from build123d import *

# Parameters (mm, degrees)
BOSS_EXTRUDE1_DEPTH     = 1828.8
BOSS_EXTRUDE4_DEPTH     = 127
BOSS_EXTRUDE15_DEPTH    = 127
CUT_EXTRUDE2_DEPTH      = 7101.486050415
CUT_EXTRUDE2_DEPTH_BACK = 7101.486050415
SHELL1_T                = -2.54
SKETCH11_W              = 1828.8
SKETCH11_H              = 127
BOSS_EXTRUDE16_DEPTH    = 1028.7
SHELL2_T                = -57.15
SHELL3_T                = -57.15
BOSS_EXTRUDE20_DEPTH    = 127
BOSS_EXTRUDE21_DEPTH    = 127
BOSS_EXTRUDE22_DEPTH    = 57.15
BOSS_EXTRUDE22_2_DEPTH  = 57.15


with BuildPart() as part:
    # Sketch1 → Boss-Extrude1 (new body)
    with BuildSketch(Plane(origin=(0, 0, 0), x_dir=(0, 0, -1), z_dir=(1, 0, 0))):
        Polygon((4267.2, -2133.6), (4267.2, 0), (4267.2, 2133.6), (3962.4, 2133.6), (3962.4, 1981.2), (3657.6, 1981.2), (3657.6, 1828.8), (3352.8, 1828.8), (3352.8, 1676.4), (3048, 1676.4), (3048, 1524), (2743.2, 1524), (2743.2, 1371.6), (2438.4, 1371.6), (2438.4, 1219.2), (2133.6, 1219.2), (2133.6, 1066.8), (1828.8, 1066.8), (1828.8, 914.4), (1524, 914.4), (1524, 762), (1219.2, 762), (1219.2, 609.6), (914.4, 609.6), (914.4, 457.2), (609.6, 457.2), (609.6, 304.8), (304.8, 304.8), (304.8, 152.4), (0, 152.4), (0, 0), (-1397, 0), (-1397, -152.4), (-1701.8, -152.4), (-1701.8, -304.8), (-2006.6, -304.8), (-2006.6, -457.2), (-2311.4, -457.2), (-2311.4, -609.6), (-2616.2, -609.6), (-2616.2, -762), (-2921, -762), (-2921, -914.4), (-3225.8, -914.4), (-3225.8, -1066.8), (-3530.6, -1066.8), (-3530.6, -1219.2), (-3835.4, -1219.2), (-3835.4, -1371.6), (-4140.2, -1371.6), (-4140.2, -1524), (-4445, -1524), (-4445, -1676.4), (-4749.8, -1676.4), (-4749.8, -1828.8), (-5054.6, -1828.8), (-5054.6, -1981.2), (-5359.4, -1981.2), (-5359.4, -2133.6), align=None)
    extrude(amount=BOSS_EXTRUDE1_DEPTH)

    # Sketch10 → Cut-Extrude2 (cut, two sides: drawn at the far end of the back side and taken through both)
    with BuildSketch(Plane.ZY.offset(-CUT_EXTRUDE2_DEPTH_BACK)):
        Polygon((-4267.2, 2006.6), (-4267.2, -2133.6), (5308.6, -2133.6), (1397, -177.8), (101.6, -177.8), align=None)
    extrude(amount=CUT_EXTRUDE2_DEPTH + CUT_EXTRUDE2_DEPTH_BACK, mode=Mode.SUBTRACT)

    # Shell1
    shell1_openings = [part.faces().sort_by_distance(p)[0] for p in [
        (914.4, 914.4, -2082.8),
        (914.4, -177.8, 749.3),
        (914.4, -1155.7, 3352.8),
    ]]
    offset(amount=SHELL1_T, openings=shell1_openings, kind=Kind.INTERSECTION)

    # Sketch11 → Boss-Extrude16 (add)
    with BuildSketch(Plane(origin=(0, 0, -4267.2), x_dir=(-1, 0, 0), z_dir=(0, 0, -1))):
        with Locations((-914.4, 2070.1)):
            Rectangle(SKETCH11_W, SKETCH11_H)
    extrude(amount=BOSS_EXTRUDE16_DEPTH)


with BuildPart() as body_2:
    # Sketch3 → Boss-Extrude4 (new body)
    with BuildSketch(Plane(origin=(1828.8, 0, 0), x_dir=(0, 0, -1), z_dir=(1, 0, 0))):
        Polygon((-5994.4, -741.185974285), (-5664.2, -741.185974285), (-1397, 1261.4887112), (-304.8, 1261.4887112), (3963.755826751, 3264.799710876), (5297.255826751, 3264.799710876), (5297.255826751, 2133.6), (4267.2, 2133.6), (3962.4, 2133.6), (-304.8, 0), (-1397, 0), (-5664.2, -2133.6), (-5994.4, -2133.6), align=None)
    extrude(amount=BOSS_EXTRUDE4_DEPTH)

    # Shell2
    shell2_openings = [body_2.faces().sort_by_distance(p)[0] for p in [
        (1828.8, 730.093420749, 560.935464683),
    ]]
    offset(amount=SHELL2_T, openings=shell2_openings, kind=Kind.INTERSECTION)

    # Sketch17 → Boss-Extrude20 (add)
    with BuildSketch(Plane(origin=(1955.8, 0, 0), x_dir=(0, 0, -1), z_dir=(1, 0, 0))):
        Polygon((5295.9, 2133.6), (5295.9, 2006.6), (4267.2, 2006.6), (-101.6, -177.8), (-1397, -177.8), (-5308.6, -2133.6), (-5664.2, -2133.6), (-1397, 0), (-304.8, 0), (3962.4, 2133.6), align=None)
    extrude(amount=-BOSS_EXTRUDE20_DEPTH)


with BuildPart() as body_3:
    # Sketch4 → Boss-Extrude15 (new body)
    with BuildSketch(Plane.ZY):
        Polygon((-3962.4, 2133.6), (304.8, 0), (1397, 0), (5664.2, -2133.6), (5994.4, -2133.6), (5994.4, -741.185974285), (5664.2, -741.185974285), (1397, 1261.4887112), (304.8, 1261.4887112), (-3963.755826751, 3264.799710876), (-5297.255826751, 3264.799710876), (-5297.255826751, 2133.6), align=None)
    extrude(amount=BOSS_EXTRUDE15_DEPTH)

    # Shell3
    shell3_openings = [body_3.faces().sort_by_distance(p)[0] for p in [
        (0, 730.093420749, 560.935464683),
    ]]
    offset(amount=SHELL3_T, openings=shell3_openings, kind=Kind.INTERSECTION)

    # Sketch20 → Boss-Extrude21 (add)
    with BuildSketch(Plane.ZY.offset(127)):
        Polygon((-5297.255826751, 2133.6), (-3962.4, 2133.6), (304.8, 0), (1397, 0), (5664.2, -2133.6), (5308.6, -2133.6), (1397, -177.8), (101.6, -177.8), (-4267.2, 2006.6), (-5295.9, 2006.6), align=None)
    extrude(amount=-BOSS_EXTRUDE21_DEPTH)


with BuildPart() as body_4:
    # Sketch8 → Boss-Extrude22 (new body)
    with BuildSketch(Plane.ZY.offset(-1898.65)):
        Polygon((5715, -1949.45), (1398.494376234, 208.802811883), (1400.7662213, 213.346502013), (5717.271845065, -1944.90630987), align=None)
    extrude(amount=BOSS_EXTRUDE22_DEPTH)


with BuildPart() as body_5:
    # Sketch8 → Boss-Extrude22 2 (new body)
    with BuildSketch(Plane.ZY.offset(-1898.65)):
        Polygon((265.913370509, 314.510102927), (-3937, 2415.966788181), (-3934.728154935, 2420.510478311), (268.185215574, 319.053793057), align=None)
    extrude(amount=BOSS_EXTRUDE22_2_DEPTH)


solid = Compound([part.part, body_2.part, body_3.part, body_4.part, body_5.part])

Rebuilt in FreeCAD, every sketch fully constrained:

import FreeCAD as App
import Part
import Sketcher
from FreeCAD import Vector
Q = App.Units.Quantity


def faces_at(feature, points):
    """Names of the faces that lie closest to the given points."""
    faces = feature.Shape.Faces
    near = lambda p: min(range(len(faces)), key=lambda i: faces[i].distToShape(Part.Vertex(*p))[0])
    return sorted({f"Face{near(p) + 1}" for p in points})

doc = App.newDocument("Part")
params = doc.addObject("Spreadsheet::Sheet", "Params")
for row, (alias, value) in enumerate([
    ("sketch1_width", "168 in"),
    ("sketch1_height", "12 in"),
    ("sketch1_height2", "55 in"),
    ("pad1_length", "72 in"),
    ("sketch2_width", "163 in"),
    ("sketch2_height", "377 in"),
    ("sketch2_height2", "51 in"),
    ("thickness_wall", "0.1 in"),
    ("sketch3_width", "72 in"),
    ("sketch3_height", "5 in"),
    ("pad2_length", "40.5 in"),
    ("sketch4_height", "13 in"),
    ("sketch4_height2", "43 in"),
    ("sketch4_height3", "52.5 in"),
    ("pad3_length", "5 in"),
    ("thickness2_wall", "2.25 in"),
    ("sketch5_width", "5 in"),
    ("sketch5_height", "43 in"),
    ("sketch5_height2", "14 in"),
    ("sketch5_height3", "51 in"),
    ("sketch5_height4", "52.5 in"),
    ("pad4_length", "5 in"),
    ("sketch6_height", "43 in"),
    ("sketch6_height2", "13 in"),
    ("sketch6_height3", "52.5 in"),
    ("pad5_length", "5 in"),
    ("thickness3_wall", "2.25 in"),
    ("sketch7_height", "51 in"),
    ("sketch7_height2", "14 in"),
    ("sketch7_height3", "43 in"),
    ("sketch7_height4", "40.5 in"),
    ("pad6_length", "5 in"),
    ("sketch8_length", "190 in"),
    ("sketch8_length2", "0.2 in"),
    ("pad7_length", "2.25 in"),
    ("sketch9_length", "185 in"),
    ("sketch9_length2", "0.2 in"),
    ("pad8_length", "2.25 in"),
], start=1):
    params.set(f"A{row}", alias)
    params.set(f"B{row}", "=" + value)
    params.setAlias(f"B{row}", alias)

body = doc.addObject("PartDesign::Body", "Body")

# Sketch on YZ plane
sketch1 = doc.addObject("Sketcher::SketchObject", "Sketch")
body.addObject(sketch1)
sketch1.AttachmentSupport = (doc.YZ_Plane, [""])
sketch1.MapMode = "FlatFace"
sketch1.addGeometry([
    Part.LineSegment(Vector(-2134, -4267, 0), Vector(2134, -4267, 0)),  # 0
    Part.LineSegment(Vector(2134, -4267, 0), Vector(2134, -3962, 0)),  # 1
    Part.LineSegment(Vector(2134, -3962, 0), Vector(1981, -3962, 0)),  # 2
    Part.LineSegment(Vector(1981, -3962, 0), Vector(1981, -3658, 0)),  # 3
    Part.LineSegment(Vector(1981, -3658, 0), Vector(1829, -3658, 0)),  # 4
    Part.LineSegment(Vector(1829, -3658, 0), Vector(1829, -3353, 0)),  # 5
    Part.LineSegment(Vector(1829, -3353, 0), Vector(1676, -3353, 0)),  # 6
    Part.LineSegment(Vector(1676, -3353, 0), Vector(1676, -3048, 0)),  # 7
    Part.LineSegment(Vector(1676, -3048, 0), Vector(1524, -3048, 0)),  # 8
    Part.LineSegment(Vector(1524, -3048, 0), Vector(1524, -2743, 0)),  # 9
    Part.LineSegment(Vector(1524, -2743, 0), Vector(1372, -2743, 0)),  # 10
    Part.LineSegment(Vector(1372, -2743, 0), Vector(1372, -2438, 0)),  # 11
    Part.LineSegment(Vector(1372, -2438, 0), Vector(1219, -2438, 0)),  # 12
    Part.LineSegment(Vector(1219, -2438, 0), Vector(1219, -2134, 0)),  # 13
    Part.LineSegment(Vector(1219, -2134, 0), Vector(1067, -2134, 0)),  # 14
    Part.LineSegment(Vector(1067, -2134, 0), Vector(1067, -1829, 0)),  # 15
    Part.LineSegment(Vector(1067, -1829, 0), Vector(914, -1829, 0)),  # 16
    Part.LineSegment(Vector(914, -1829, 0), Vector(914, -1524, 0)),  # 17
    Part.LineSegment(Vector(914, -1524, 0), Vector(762, -1524, 0)),  # 18
    Part.LineSegment(Vector(762, -1524, 0), Vector(762, -1219, 0)),  # 19
    Part.LineSegment(Vector(762, -1219, 0), Vector(610, -1219, 0)),  # 20
    Part.LineSegment(Vector(610, -1219, 0), Vector(610, -914, 0)),  # 21
    Part.LineSegment(Vector(610, -914, 0), Vector(457, -914, 0)),  # 22
    Part.LineSegment(Vector(457, -914, 0), Vector(457, -610, 0)),  # 23
    Part.LineSegment(Vector(457, -610, 0), Vector(305, -610, 0)),  # 24
    Part.LineSegment(Vector(305, -610, 0), Vector(305, -305, 0)),  # 25
    Part.LineSegment(Vector(305, -305, 0), Vector(152, -305, 0)),  # 26
    Part.LineSegment(Vector(152, -305, 0), Vector(152, 0, 0)),  # 27
    Part.LineSegment(Vector(152, 0, 0), Vector(0, 0, 0)),  # 28
    Part.LineSegment(Vector(0, 0, 0), Vector(0, 1397, 0)),  # 29
    Part.LineSegment(Vector(0, 1397, 0), Vector(-152, 1397, 0)),  # 30
    Part.LineSegment(Vector(-152, 1397, 0), Vector(-152, 1702, 0)),  # 31
    Part.LineSegment(Vector(-152, 1702, 0), Vector(-305, 1702, 0)),  # 32
    Part.LineSegment(Vector(-305, 1702, 0), Vector(-305, 2007, 0)),  # 33
    Part.LineSegment(Vector(-305, 2007, 0), Vector(-457, 2007, 0)),  # 34
    Part.LineSegment(Vector(-457, 2007, 0), Vector(-457, 2311, 0)),  # 35
    Part.LineSegment(Vector(-457, 2311, 0), Vector(-610, 2311, 0)),  # 36
    Part.LineSegment(Vector(-610, 2311, 0), Vector(-610, 2616, 0)),  # 37
    Part.LineSegment(Vector(-610, 2616, 0), Vector(-762, 2616, 0)),  # 38
    Part.LineSegment(Vector(-762, 2616, 0), Vector(-762, 2921, 0)),  # 39
    Part.LineSegment(Vector(-762, 2921, 0), Vector(-914, 2921, 0)),  # 40
    Part.LineSegment(Vector(-914, 2921, 0), Vector(-914, 3226, 0)),  # 41
    Part.LineSegment(Vector(-914, 3226, 0), Vector(-1067, 3226, 0)),  # 42
    Part.LineSegment(Vector(-1067, 3226, 0), Vector(-1067, 3531, 0)),  # 43
    Part.LineSegment(Vector(-1067, 3531, 0), Vector(-1219, 3531, 0)),  # 44
    Part.LineSegment(Vector(-1219, 3531, 0), Vector(-1219, 3835, 0)),  # 45
    Part.LineSegment(Vector(-1219, 3835, 0), Vector(-1372, 3835, 0)),  # 46
    Part.LineSegment(Vector(-1372, 3835, 0), Vector(-1372, 4140, 0)),  # 47
    Part.LineSegment(Vector(-1372, 4140, 0), Vector(-1524, 4140, 0)),  # 48
    Part.LineSegment(Vector(-1524, 4140, 0), Vector(-1524, 4445, 0)),  # 49
    Part.LineSegment(Vector(-1524, 4445, 0), Vector(-1676, 4445, 0)),  # 50
    Part.LineSegment(Vector(-1676, 4445, 0), Vector(-1676, 4750, 0)),  # 51
    Part.LineSegment(Vector(-1676, 4750, 0), Vector(-1829, 4750, 0)),  # 52
    Part.LineSegment(Vector(-1829, 4750, 0), Vector(-1829, 5055, 0)),  # 53
    Part.LineSegment(Vector(-1829, 5055, 0), Vector(-1981, 5055, 0)),  # 54
    Part.LineSegment(Vector(-1981, 5055, 0), Vector(-1981, 5359, 0)),  # 55
    Part.LineSegment(Vector(-1981, 5359, 0), Vector(-2134, 5359, 0)),  # 56
    Part.LineSegment(Vector(-2134, 5359, 0), Vector(-2134, -4267, 0)),  # 57
], False)
sketch1.addConstraint([
    Sketcher.Constraint("Coincident", 0, 2, 1, 1),
    Sketcher.Constraint("Coincident", 1, 2, 2, 1),
    Sketcher.Constraint("Coincident", 2, 2, 3, 1),
    Sketcher.Constraint("Coincident", 3, 2, 4, 1),
    Sketcher.Constraint("Coincident", 4, 2, 5, 1),
    Sketcher.Constraint("Coincident", 5, 2, 6, 1),
    Sketcher.Constraint("Coincident", 6, 2, 7, 1),
    Sketcher.Constraint("Coincident", 7, 2, 8, 1),
    Sketcher.Constraint("Coincident", 8, 2, 9, 1),
    Sketcher.Constraint("Coincident", 9, 2, 10, 1),
    Sketcher.Constraint("Coincident", 10, 2, 11, 1),
    Sketcher.Constraint("Coincident", 11, 2, 12, 1),
    Sketcher.Constraint("Coincident", 12, 2, 13, 1),
    Sketcher.Constraint("Coincident", 13, 2, 14, 1),
    Sketcher.Constraint("Coincident", 14, 2, 15, 1),
    Sketcher.Constraint("Coincident", 15, 2, 16, 1),
    Sketcher.Constraint("Coincident", 16, 2, 17, 1),
    Sketcher.Constraint("Coincident", 17, 2, 18, 1),
    Sketcher.Constraint("Coincident", 18, 2, 19, 1),
    Sketcher.Constraint("Coincident", 19, 2, 20, 1),
    Sketcher.Constraint("Coincident", 20, 2, 21, 1),
    Sketcher.Constraint("Coincident", 21, 2, 22, 1),
    Sketcher.Constraint("Coincident", 22, 2, 23, 1),
    Sketcher.Constraint("Coincident", 23, 2, 24, 1),
    Sketcher.Constraint("Coincident", 24, 2, 25, 1),
    Sketcher.Constraint("Coincident", 25, 2, 26, 1),
    Sketcher.Constraint("Coincident", 26, 2, 27, 1),
    Sketcher.Constraint("Coincident", 27, 2, 28, 1),
    Sketcher.Constraint("Coincident", 28, 2, 29, 1),
    Sketcher.Constraint("Coincident", 29, 2, 30, 1),
    Sketcher.Constraint("Coincident", 30, 2, 31, 1),
    Sketcher.Constraint("Coincident", 31, 2, 32, 1),
    Sketcher.Constraint("Coincident", 32, 2, 33, 1),
    Sketcher.Constraint("Coincident", 33, 2, 34, 1),
    Sketcher.Constraint("Coincident", 34, 2, 35, 1),
    Sketcher.Constraint("Coincident", 35, 2, 36, 1),
    Sketcher.Constraint("Coincident", 36, 2, 37, 1),
    Sketcher.Constraint("Coincident", 37, 2, 38, 1),
    Sketcher.Constraint("Coincident", 38, 2, 39, 1),
    Sketcher.Constraint("Coincident", 39, 2, 40, 1),
    Sketcher.Constraint("Coincident", 40, 2, 41, 1),
    Sketcher.Constraint("Coincident", 41, 2, 42, 1),
    Sketcher.Constraint("Coincident", 42, 2, 43, 1),
    Sketcher.Constraint("Coincident", 43, 2, 44, 1),
    Sketcher.Constraint("Coincident", 44, 2, 45, 1),
    Sketcher.Constraint("Coincident", 45, 2, 46, 1),
    Sketcher.Constraint("Coincident", 46, 2, 47, 1),
    Sketcher.Constraint("Coincident", 47, 2, 48, 1),
    Sketcher.Constraint("Coincident", 48, 2, 49, 1),
    Sketcher.Constraint("Coincident", 49, 2, 50, 1),
    Sketcher.Constraint("Coincident", 50, 2, 51, 1),
    Sketcher.Constraint("Coincident", 51, 2, 52, 1),
    Sketcher.Constraint("Coincident", 52, 2, 53, 1),
    Sketcher.Constraint("Coincident", 53, 2, 54, 1),
    Sketcher.Constraint("Coincident", 54, 2, 55, 1),
    Sketcher.Constraint("Coincident", 55, 2, 56, 1),
    Sketcher.Constraint("Coincident", 56, 2, 57, 1),
    Sketcher.Constraint("Coincident", 57, 2, 0, 1),
    Sketcher.Constraint("Horizontal", 0),
    Sketcher.Constraint("Vertical", 1),
    Sketcher.Constraint("Horizontal", 2),
    Sketcher.Constraint("Vertical", 3),
    Sketcher.Constraint("Horizontal", 4),
    Sketcher.Constraint("Vertical", 5),
    Sketcher.Constraint("Horizontal", 6),
    Sketcher.Constraint("Vertical", 7),
    Sketcher.Constraint("Horizontal", 8),
    Sketcher.Constraint("Vertical", 9),
    Sketcher.Constraint("Horizontal", 10),
    Sketcher.Constraint("Vertical", 11),
    Sketcher.Constraint("Horizontal", 12),
    Sketcher.Constraint("Vertical", 13),
    Sketcher.Constraint("Horizontal", 14),
    Sketcher.Constraint("Vertical", 15),
    Sketcher.Constraint("Horizontal", 16),
    Sketcher.Constraint("Vertical", 17),
    Sketcher.Constraint("Horizontal", 18),
    Sketcher.Constraint("Vertical", 19),
    Sketcher.Constraint("Horizontal", 20),
    Sketcher.Constraint("Vertical", 21),
    Sketcher.Constraint("Horizontal", 22),
    Sketcher.Constraint("Vertical", 23),
    Sketcher.Constraint("Horizontal", 24),
    Sketcher.Constraint("Vertical", 25),
    Sketcher.Constraint("Horizontal", 26),
    Sketcher.Constraint("Vertical", 27),
    Sketcher.Constraint("Horizontal", 28),
    Sketcher.Constraint("Vertical", 29),
    Sketcher.Constraint("Horizontal", 30),
    Sketcher.Constraint("Vertical", 31),
    Sketcher.Constraint("Horizontal", 32),
    Sketcher.Constraint("Vertical", 33),
    Sketcher.Constraint("Horizontal", 34),
    Sketcher.Constraint("Vertical", 35),
    Sketcher.Constraint("Horizontal", 36),
    Sketcher.Constraint("Vertical", 37),
    Sketcher.Constraint("Horizontal", 38),
    Sketcher.Constraint("Vertical", 39),
    Sketcher.Constraint("Horizontal", 40),
    Sketcher.Constraint("Vertical", 41),
    Sketcher.Constraint("Horizontal", 42),
    Sketcher.Constraint("Vertical", 43),
    Sketcher.Constraint("Horizontal", 44),
    Sketcher.Constraint("Vertical", 45),
    Sketcher.Constraint("Horizontal", 46),
    Sketcher.Constraint("Vertical", 47),
    Sketcher.Constraint("Horizontal", 48),
    Sketcher.Constraint("Vertical", 49),
    Sketcher.Constraint("Horizontal", 50),
    Sketcher.Constraint("Vertical", 51),
    Sketcher.Constraint("Horizontal", 52),
    Sketcher.Constraint("Vertical", 53),
    Sketcher.Constraint("Horizontal", 54),
    Sketcher.Constraint("Vertical", 55),
    Sketcher.Constraint("Horizontal", 56),
    Sketcher.Constraint("Vertical", 57),
    Sketcher.Constraint("Coincident", 28, 2, -1, 1),
    Sketcher.Constraint("Equal", 2, 4),
    Sketcher.Constraint("Equal", 4, 6),
    Sketcher.Constraint("Equal", 6, 8),
    Sketcher.Constraint("Equal", 8, 10),
    Sketcher.Constraint("Equal", 10, 12),
    Sketcher.Constraint("Equal", 12, 14),
    Sketcher.Constraint("Equal", 14, 16),
    Sketcher.Constraint("Equal", 16, 18),
    Sketcher.Constraint("Equal", 18, 20),
    Sketcher.Constraint("Equal", 20, 22),
    Sketcher.Constraint("Equal", 22, 24),
    Sketcher.Constraint("Equal", 24, 26),
    Sketcher.Constraint("Equal", 26, 28),
    Sketcher.Constraint("Equal", 28, 30),
    Sketcher.Constraint("Equal", 30, 32),
    Sketcher.Constraint("Equal", 32, 34),
    Sketcher.Constraint("Equal", 34, 36),
    Sketcher.Constraint("Equal", 36, 38),
    Sketcher.Constraint("Equal", 38, 40),
    Sketcher.Constraint("Equal", 40, 42),
    Sketcher.Constraint("Equal", 42, 44),
    Sketcher.Constraint("Equal", 44, 46),
    Sketcher.Constraint("Equal", 46, 48),
    Sketcher.Constraint("Equal", 48, 50),
    Sketcher.Constraint("Equal", 50, 52),
    Sketcher.Constraint("Equal", 52, 54),
    Sketcher.Constraint("Equal", 54, 56),
    Sketcher.Constraint("Equal", 1, 3),
    Sketcher.Constraint("Equal", 3, 5),
    Sketcher.Constraint("Equal", 5, 7),
    Sketcher.Constraint("Equal", 7, 9),
    Sketcher.Constraint("Equal", 9, 11),
    Sketcher.Constraint("Equal", 11, 13),
    Sketcher.Constraint("Equal", 13, 15),
    Sketcher.Constraint("Equal", 15, 17),
    Sketcher.Constraint("Equal", 17, 19),
    Sketcher.Constraint("Equal", 19, 21),
    Sketcher.Constraint("Equal", 21, 23),
    Sketcher.Constraint("Equal", 23, 25),
    Sketcher.Constraint("Equal", 25, 27),
    Sketcher.Constraint("Equal", 27, 31),
    Sketcher.Constraint("Equal", 31, 33),
    Sketcher.Constraint("Equal", 33, 35),
    Sketcher.Constraint("Equal", 35, 37),
    Sketcher.Constraint("Equal", 37, 39),
    Sketcher.Constraint("Equal", 39, 41),
    Sketcher.Constraint("Equal", 41, 43),
    Sketcher.Constraint("Equal", 43, 45),
    Sketcher.Constraint("Equal", 45, 47),
    Sketcher.Constraint("Equal", 47, 49),
    Sketcher.Constraint("Equal", 49, 51),
    Sketcher.Constraint("Equal", 51, 53),
    Sketcher.Constraint("Equal", 53, 55),
    Sketcher.Constraint("DistanceX", 0, 1, 0, 2, Q("168 in")),
    Sketcher.Constraint("DistanceY", 1, 1, 1, 2, Q("12 in")),
    Sketcher.Constraint("DistanceY", 29, 1, 29, 2, Q("55 in")),
])
sketch1.setExpression("Constraints[170]", "Params.sketch1_width")
sketch1.setExpression("Constraints[171]", "Params.sketch1_height")
sketch1.setExpression("Constraints[172]", "Params.sketch1_height2")
pad1 = doc.addObject("PartDesign::Pad", "Pad")
body.addObject(pad1)
pad1.Profile = sketch1
pad1.setExpression("Length", "Params.pad1_length")

# Sketch on YZ plane
sketch2 = doc.addObject("Sketcher::SketchObject", "Sketch001")
body.addObject(sketch2)
sketch2.AttachmentSupport = (doc.YZ_Plane, [""])
sketch2.MapMode = "FlatFace"
sketch2.addGeometry([
    Part.LineSegment(Vector(2007, -4267, 0), Vector(-2134, -4267, 0)),  # 0
    Part.LineSegment(Vector(-2134, -4267, 0), Vector(-2134, 5309, 0)),  # 1
    Part.LineSegment(Vector(-2134, 5309, 0), Vector(-178, 1397, 0)),  # 2
    Part.LineSegment(Vector(-178, 1397, 0), Vector(-178, 102, 0)),  # 3
    Part.LineSegment(Vector(-178, 102, 0), Vector(2007, -4267, 0)),  # 4
], False)
sketch2.addConstraint([
    Sketcher.Constraint("Coincident", 0, 2, 1, 1),
    Sketcher.Constraint("Coincident", 1, 2, 2, 1),
    Sketcher.Constraint("Coincident", 2, 2, 3, 1),
    Sketcher.Constraint("Coincident", 3, 2, 4, 1),
    Sketcher.Constraint("Coincident", 4, 2, 0, 1),
    Sketcher.Constraint("Horizontal", 0),
    Sketcher.Constraint("Vertical", 1),
    Sketcher.Constraint("Vertical", 3),
    Sketcher.Constraint("Parallel", 2, 4),
    Sketcher.Constraint("DistanceX", 0, 2, 0, 1, Q("163 in")),
    Sketcher.Constraint("DistanceY", 1, 1, 1, 2, Q("377 in")),
    Sketcher.Constraint("DistanceY", 3, 2, 3, 1, Q("51 in")),
    Sketcher.Constraint("DistanceX", 0, 2, -1, 1, Q("84 in")),
    Sketcher.Constraint("DistanceY", 0, 2, -1, 1, Q("168 in")),
    Sketcher.Constraint("DistanceX", 2, 2, -1, 1, Q("7 in")),
])
sketch2.setExpression("Constraints[9]", "Params.sketch2_width")
sketch2.setExpression("Constraints[10]", "Params.sketch2_height")
sketch2.setExpression("Constraints[11]", "Params.sketch2_height2")
pocket1 = doc.addObject("PartDesign::Pocket", "Pocket")
body.addObject(pocket1)
pocket1.Profile = sketch2
pocket1.Type = "ThroughAll"
pocket1.Midplane = True
doc.recompute()

thickness = doc.addObject("PartDesign::Thickness", "Thickness")
body.addObject(thickness)
thickness.Base = (pocket1, faces_at(pocket1, [(914.4, 914.4, -2082.8), (914.4, -177.8, 749.3), (914.4, -1155.7, 3352.8)]))
thickness.setExpression("Value", "Params.thickness_wall")
thickness.Reversed = True
thickness.Join = "Intersection"

# Sketch on XY plane
sketch3 = doc.addObject("Sketcher::SketchObject", "Sketch002")
body.addObject(sketch3)
sketch3.AttachmentSupport = (doc.XY_Plane, [""])
sketch3.MapMode = "FlatFace"
sketch3.AttachmentOffset = App.Placement(Vector(0, 0, -168 * 25.4), App.Rotation())
sketch3.addGeometry([
    Part.LineSegment(Vector(1829, 2134, 0), Vector(1829, 2007, 0)),
    Part.LineSegment(Vector(1829, 2007, 0), Vector(0, 2007, 0)),
    Part.LineSegment(Vector(0, 2007, 0), Vector(0, 2134, 0)),
    Part.LineSegment(Vector(0, 2134, 0), Vector(1829, 2134, 0)),
], False)
sketch3.addConstraint([
    Sketcher.Constraint("Coincident", 0, 2, 1, 1),
    Sketcher.Constraint("Coincident", 1, 2, 2, 1),
    Sketcher.Constraint("Coincident", 2, 2, 3, 1),
    Sketcher.Constraint("Coincident", 3, 2, 0, 1),
    Sketcher.Constraint("Vertical", 0),
    Sketcher.Constraint("Horizontal", 1),
    Sketcher.Constraint("Vertical", 2),
    Sketcher.Constraint("Horizontal", 3),
    Sketcher.Constraint("PointOnObject", 1, 2, -2),
    Sketcher.Constraint("DistanceX", 1, 2, 1, 1, Q("72 in")),
    Sketcher.Constraint("DistanceY", 0, 2, 0, 1, Q("5 in")),
    Sketcher.Constraint("DistanceY", -1, 1, 0, 2, Q("79 in")),
])
sketch3.setExpression("Constraints[9]", "Params.sketch3_width")
sketch3.setExpression("Constraints[10]", "Params.sketch3_height")
pad2 = doc.addObject("PartDesign::Pad", "Pad001")
body.addObject(pad2)
pad2.Profile = sketch3
pad2.setExpression("Length", "Params.pad2_length")
pad2.Reversed = True
body2 = doc.addObject("PartDesign::Body", "Body001")

# Sketch on YZ plane
sketch4 = doc.addObject("Sketcher::SketchObject", "Sketch003")
body2.addObject(sketch4)
sketch4.AttachmentSupport = (doc.getObject("YZ_Plane001"), [""])
sketch4.MapMode = "FlatFace"
sketch4.AttachmentOffset = App.Placement(Vector(0, 0, 72 * 25.4), App.Rotation())
sketch4.addGeometry([
    Part.LineSegment(Vector(-741, 5664, 0), Vector(-741, 5994, 0)),  # 0
    Part.LineSegment(Vector(-741, 5994, 0), Vector(-2134, 5994, 0)),  # 1
    Part.LineSegment(Vector(-2134, 5994, 0), Vector(-2134, 5664, 0)),  # 2
    Part.LineSegment(Vector(-2134, 5664, 0), Vector(0, 1397, 0)),  # 3
    Part.LineSegment(Vector(0, 1397, 0), Vector(0, 305, 0)),  # 4
    Part.LineSegment(Vector(0, 305, 0), Vector(2134, -3962, 0)),  # 5
    Part.LineSegment(Vector(2134, -3962, 0), Vector(2134, -5297, 0)),  # 6
    Part.LineSegment(Vector(2134, -5297, 0), Vector(3265, -5297, 0)),  # 7
    Part.LineSegment(Vector(3265, -5297, 0), Vector(3265, -3964, 0)),  # 8
    Part.LineSegment(Vector(3265, -3964, 0), Vector(1261, 305, 0)),  # 9
    Part.LineSegment(Vector(1261, 305, 0), Vector(1261, 1397, 0)),  # 10
    Part.LineSegment(Vector(1261, 1397, 0), Vector(-741, 5664, 0)),  # 11
], False)
sketch4.addConstraint([
    Sketcher.Constraint("Coincident", 0, 2, 1, 1),
    Sketcher.Constraint("Coincident", 1, 2, 2, 1),
    Sketcher.Constraint("Coincident", 2, 2, 3, 1),
    Sketcher.Constraint("Coincident", 3, 2, 4, 1),
    Sketcher.Constraint("Coincident", 4, 2, 5, 1),
    Sketcher.Constraint("Coincident", 5, 2, 6, 1),
    Sketcher.Constraint("Coincident", 6, 2, 7, 1),
    Sketcher.Constraint("Coincident", 7, 2, 8, 1),
    Sketcher.Constraint("Coincident", 8, 2, 9, 1),
    Sketcher.Constraint("Coincident", 9, 2, 10, 1),
    Sketcher.Constraint("Coincident", 10, 2, 11, 1),
    Sketcher.Constraint("Coincident", 11, 2, 0, 1),
    Sketcher.Constraint("Vertical", 0),
    Sketcher.Constraint("Horizontal", 1),
    Sketcher.Constraint("Vertical", 2),
    Sketcher.Constraint("Vertical", 4),
    Sketcher.Constraint("Vertical", 6),
    Sketcher.Constraint("Horizontal", 7),
    Sketcher.Constraint("Vertical", 8),
    Sketcher.Constraint("Vertical", 10),
    Sketcher.Constraint("PointOnObject", 3, 2, -2),
    Sketcher.Constraint("Parallel", 3, 5),
    Sketcher.Constraint("Parallel", 9, 11),
    Sketcher.Constraint("Horizontal", 4, 2, 9, 2),
    Sketcher.Constraint("Horizontal", 3, 2, 10, 2),
    Sketcher.Constraint("Horizontal", 2, 2, 11, 2),
    Sketcher.Constraint("Equal", 3, 5),
    Sketcher.Constraint("DistanceY", 0, 1, 0, 2, Q("13 in")),
    Sketcher.Constraint("DistanceY", 4, 2, 4, 1, Q("43 in")),
    Sketcher.Constraint("DistanceY", 8, 1, 8, 2, Q("52.5 in")),
    Sketcher.Constraint("DistanceY", -1, 1, 0, 2, Q("236 in")),
    Sketcher.Constraint("DistanceX", 1, 2, -1, 1, Q("84 in")),
    Sketcher.Constraint("DistanceY", -1, 1, 3, 2, Q("55 in")),
    Sketcher.Constraint("DistanceX", 7, 1, 7, 2, Q("1131.199711 mm")),
    Sketcher.Constraint("DistanceX", 9, 2, 8, 2, Q("2003.311 mm")),
    Sketcher.Constraint("Distance", 9, Q("4715.275581 mm")),
])
sketch4.setExpression("Constraints[27]", "Params.sketch4_height")
sketch4.setExpression("Constraints[28]", "Params.sketch4_height2")
sketch4.setExpression("Constraints[29]", "Params.sketch4_height3")
pad3 = doc.addObject("PartDesign::Pad", "Pad002")
body2.addObject(pad3)
pad3.Profile = sketch4
pad3.setExpression("Length", "Params.pad3_length")
doc.recompute()

thickness2 = doc.addObject("PartDesign::Thickness", "Thickness001")
body2.addObject(thickness2)
thickness2.Base = (pad3, faces_at(pad3, [(1828.8, 565.6, 348.572)]))
thickness2.setExpression("Value", "Params.thickness2_wall")
thickness2.Reversed = True
thickness2.Join = "Intersection"

# Sketch on YZ plane
sketch5 = doc.addObject("Sketcher::SketchObject", "Sketch004")
body2.addObject(sketch5)
sketch5.AttachmentSupport = (doc.getObject("YZ_Plane001"), [""])
sketch5.MapMode = "FlatFace"
sketch5.AttachmentOffset = App.Placement(Vector(0, 0, 77 * 25.4), App.Rotation())
sketch5.addGeometry([
    Part.LineSegment(Vector(2007, -5296, 0), Vector(2134, -5296, 0)),  # 0
    Part.LineSegment(Vector(2134, -5296, 0), Vector(2134, -3962, 0)),  # 1
    Part.LineSegment(Vector(2134, -3962, 0), Vector(0, 305, 0)),  # 2
    Part.LineSegment(Vector(0, 305, 0), Vector(0, 1397, 0)),  # 3
    Part.LineSegment(Vector(0, 1397, 0), Vector(-2134, 5664, 0)),  # 4
    Part.LineSegment(Vector(-2134, 5664, 0), Vector(-2134, 5309, 0)),  # 5
    Part.LineSegment(Vector(-2134, 5309, 0), Vector(-178, 1397, 0)),  # 6
    Part.LineSegment(Vector(-178, 1397, 0), Vector(-178, 102, 0)),  # 7
    Part.LineSegment(Vector(-178, 102, 0), Vector(2007, -4267, 0)),  # 8
    Part.LineSegment(Vector(2007, -4267, 0), Vector(2007, -5296, 0)),  # 9
], False)
sketch5.addConstraint([
    Sketcher.Constraint("Coincident", 0, 2, 1, 1),
    Sketcher.Constraint("Coincident", 1, 2, 2, 1),
    Sketcher.Constraint("Coincident", 2, 2, 3, 1),
    Sketcher.Constraint("Coincident", 3, 2, 4, 1),
    Sketcher.Constraint("Coincident", 4, 2, 5, 1),
    Sketcher.Constraint("Coincident", 5, 2, 6, 1),
    Sketcher.Constraint("Coincident", 6, 2, 7, 1),
    Sketcher.Constraint("Coincident", 7, 2, 8, 1),
    Sketcher.Constraint("Coincident", 8, 2, 9, 1),
    Sketcher.Constraint("Coincident", 9, 2, 0, 1),
    Sketcher.Constraint("Horizontal", 0),
    Sketcher.Constraint("Vertical", 1),
    Sketcher.Constraint("Vertical", 3),
    Sketcher.Constraint("Vertical", 5),
    Sketcher.Constraint("Vertical", 7),
    Sketcher.Constraint("Vertical", 9),
    Sketcher.Constraint("PointOnObject", 2, 2, -2),
    Sketcher.Constraint("Parallel", 2, 4),
    Sketcher.Constraint("Parallel", 4, 6),
    Sketcher.Constraint("Parallel", 6, 8),
    Sketcher.Constraint("Horizontal", 3, 2, 6, 2),
    Sketcher.Constraint("Equal", 2, 4),
    Sketcher.Constraint("DistanceX", 0, 1, 0, 2, Q("5 in")),
    Sketcher.Constraint("DistanceY", 3, 1, 3, 2, Q("43 in")),
    Sketcher.Constraint("DistanceY", 5, 2, 5, 1, Q("14 in")),
    Sketcher.Constraint("DistanceY", 7, 2, 7, 1, Q("51 in")),
    Sketcher.Constraint("DistanceY", 1, 1, 1, 2, Q("52.5 in")),
    Sketcher.Constraint("DistanceY", 9, 2, 9, 1, Q("40.5 in")),
    Sketcher.Constraint("DistanceX", -1, 1, 0, 2, Q("84 in")),
    Sketcher.Constraint("DistanceY", 1, 2, -1, 1, Q("156 in")),
])
sketch5.setExpression("Constraints[22]", "Params.sketch5_width")
sketch5.setExpression("Constraints[23]", "Params.sketch5_height")
sketch5.setExpression("Constraints[24]", "Params.sketch5_height2")
sketch5.setExpression("Constraints[25]", "Params.sketch5_height3")
sketch5.setExpression("Constraints[26]", "Params.sketch5_height4")
pad4 = doc.addObject("PartDesign::Pad", "Pad003")
body2.addObject(pad4)
pad4.Profile = sketch5
pad4.setExpression("Length", "Params.pad4_length")
pad4.Reversed = True
body3 = doc.addObject("PartDesign::Body", "Body002")

# Sketch on YZ plane
sketch6 = doc.addObject("Sketcher::SketchObject", "Sketch005")
body3.addObject(sketch6)
sketch6.AttachmentSupport = (doc.getObject("YZ_Plane002"), [""])
sketch6.MapMode = "FlatFace"
sketch6.addGeometry([
    Part.LineSegment(Vector(2134, -3962, 0), Vector(0, 305, 0)),  # 0
    Part.LineSegment(Vector(0, 305, 0), Vector(0, 1397, 0)),  # 1
    Part.LineSegment(Vector(0, 1397, 0), Vector(-2134, 5664, 0)),  # 2
    Part.LineSegment(Vector(-2134, 5664, 0), Vector(-2134, 5994, 0)),  # 3
    Part.LineSegment(Vector(-2134, 5994, 0), Vector(-741, 5994, 0)),  # 4
    Part.LineSegment(Vector(-741, 5994, 0), Vector(-741, 5664, 0)),  # 5
    Part.LineSegment(Vector(-741, 5664, 0), Vector(1261, 1397, 0)),  # 6
    Part.LineSegment(Vector(1261, 1397, 0), Vector(1261, 305, 0)),  # 7
    Part.LineSegment(Vector(1261, 305, 0), Vector(3265, -3964, 0)),  # 8
    Part.LineSegment(Vector(3265, -3964, 0), Vector(3265, -5297, 0)),  # 9
    Part.LineSegment(Vector(3265, -5297, 0), Vector(2134, -5297, 0)),  # 10
    Part.LineSegment(Vector(2134, -5297, 0), Vector(2134, -3962, 0)),  # 11
], False)
sketch6.addConstraint([
    Sketcher.Constraint("Coincident", 0, 2, 1, 1),
    Sketcher.Constraint("Coincident", 1, 2, 2, 1),
    Sketcher.Constraint("Coincident", 2, 2, 3, 1),
    Sketcher.Constraint("Coincident", 3, 2, 4, 1),
    Sketcher.Constraint("Coincident", 4, 2, 5, 1),
    Sketcher.Constraint("Coincident", 5, 2, 6, 1),
    Sketcher.Constraint("Coincident", 6, 2, 7, 1),
    Sketcher.Constraint("Coincident", 7, 2, 8, 1),
    Sketcher.Constraint("Coincident", 8, 2, 9, 1),
    Sketcher.Constraint("Coincident", 9, 2, 10, 1),
    Sketcher.Constraint("Coincident", 10, 2, 11, 1),
    Sketcher.Constraint("Coincident", 11, 2, 0, 1),
    Sketcher.Constraint("Vertical", 1),
    Sketcher.Constraint("Vertical", 3),
    Sketcher.Constraint("Horizontal", 4),
    Sketcher.Constraint("Vertical", 5),
    Sketcher.Constraint("Vertical", 7),
    Sketcher.Constraint("Vertical", 9),
    Sketcher.Constraint("Horizontal", 10),
    Sketcher.Constraint("Vertical", 11),
    Sketcher.Constraint("PointOnObject", 0, 2, -2),
    Sketcher.Constraint("Parallel", 0, 2),
    Sketcher.Constraint("Parallel", 6, 8),
    Sketcher.Constraint("Horizontal", 2, 2, 5, 2),
    Sketcher.Constraint("Horizontal", 1, 2, 6, 2),
    Sketcher.Constraint("Horizontal", 0, 2, 7, 2),
    Sketcher.Constraint("Equal", 0, 2),
    Sketcher.Constraint("DistanceY", 1, 1, 1, 2, Q("43 in")),
    Sketcher.Constraint("DistanceY", 3, 1, 3, 2, Q("13 in")),
    Sketcher.Constraint("DistanceY", 9, 2, 9, 1, Q("52.5 in")),
    Sketcher.Constraint("DistanceY", -1, 1, 0, 2, Q("12 in")),
    Sketcher.Constraint("DistanceX", 2, 2, -1, 1, Q("84 in")),
    Sketcher.Constraint("DistanceY", -1, 1, 2, 2, Q("223 in")),
    Sketcher.Constraint("DistanceX", 10, 2, 10, 1, Q("1131.199711 mm")),
    Sketcher.Constraint("DistanceX", 7, 2, 8, 2, Q("2003.311 mm")),
    Sketcher.Constraint("Distance", 8, Q("4715.275581 mm")),
])
sketch6.setExpression("Constraints[27]", "Params.sketch6_height")
sketch6.setExpression("Constraints[28]", "Params.sketch6_height2")
sketch6.setExpression("Constraints[29]", "Params.sketch6_height3")
pad5 = doc.addObject("PartDesign::Pad", "Pad004")
body3.addObject(pad5)
pad5.Profile = sketch6
pad5.setExpression("Length", "Params.pad5_length")
pad5.Reversed = True
doc.recompute()

thickness3 = doc.addObject("PartDesign::Thickness", "Thickness002")
body3.addObject(thickness3)
thickness3.Base = (pad5, faces_at(pad5, [(0, 565.6, 348.572)]))
thickness3.setExpression("Value", "Params.thickness3_wall")
thickness3.Reversed = True
thickness3.Join = "Intersection"

# Sketch on YZ plane
sketch7 = doc.addObject("Sketcher::SketchObject", "Sketch006")
body3.addObject(sketch7)
sketch7.AttachmentSupport = (doc.getObject("YZ_Plane002"), [""])
sketch7.MapMode = "FlatFace"
sketch7.AttachmentOffset = App.Placement(Vector(0, 0, -5 * 25.4), App.Rotation())
sketch7.addGeometry([
    Part.LineSegment(Vector(2134, -3962, 0), Vector(2134, -5297, 0)),  # 0
    Part.LineSegment(Vector(2134, -5297, 0), Vector(2007, -5296, 0)),  # 1
    Part.LineSegment(Vector(2007, -5296, 0), Vector(2007, -4267, 0)),  # 2
    Part.LineSegment(Vector(2007, -4267, 0), Vector(-178, 102, 0)),  # 3
    Part.LineSegment(Vector(-178, 102, 0), Vector(-178, 1397, 0)),  # 4
    Part.LineSegment(Vector(-178, 1397, 0), Vector(-2134, 5309, 0)),  # 5
    Part.LineSegment(Vector(-2134, 5309, 0), Vector(-2134, 5664, 0)),  # 6
    Part.LineSegment(Vector(-2134, 5664, 0), Vector(0, 1397, 0)),  # 7
    Part.LineSegment(Vector(0, 1397, 0), Vector(0, 305, 0)),  # 8
    Part.LineSegment(Vector(0, 305, 0), Vector(2134, -3962, 0)),  # 9
], False)
sketch7.addConstraint([
    Sketcher.Constraint("Coincident", 0, 2, 1, 1),
    Sketcher.Constraint("Coincident", 1, 2, 2, 1),
    Sketcher.Constraint("Coincident", 2, 2, 3, 1),
    Sketcher.Constraint("Coincident", 3, 2, 4, 1),
    Sketcher.Constraint("Coincident", 4, 2, 5, 1),
    Sketcher.Constraint("Coincident", 5, 2, 6, 1),
    Sketcher.Constraint("Coincident", 6, 2, 7, 1),
    Sketcher.Constraint("Coincident", 7, 2, 8, 1),
    Sketcher.Constraint("Coincident", 8, 2, 9, 1),
    Sketcher.Constraint("Coincident", 9, 2, 0, 1),
    Sketcher.Constraint("Vertical", 0),
    Sketcher.Constraint("Vertical", 2),
    Sketcher.Constraint("Vertical", 4),
    Sketcher.Constraint("Vertical", 6),
    Sketcher.Constraint("Vertical", 8),
    Sketcher.Constraint("PointOnObject", 7, 2, -2),
    Sketcher.Constraint("Parallel", 3, 5),
    Sketcher.Constraint("Parallel", 5, 7),
    Sketcher.Constraint("Parallel", 7, 9),
    Sketcher.Constraint("Horizontal", 4, 2, 7, 2),
    Sketcher.Constraint("Equal", 7, 9),
    Sketcher.Constraint("DistanceY", 4, 1, 4, 2, Q("51 in")),
    Sketcher.Constraint("DistanceY", 6, 1, 6, 2, Q("14 in")),
    Sketcher.Constraint("DistanceY", 8, 2, 8, 1, Q("43 in")),
    Sketcher.Constraint("DistanceY", 2, 1, 2, 2, Q("40.5 in")),
    Sketcher.Constraint("DistanceX", -1, 1, 0, 2, Q("84 in")),
    Sketcher.Constraint("DistanceX", -1, 1, 1, 2, Q("79 in")),
    Sketcher.Constraint("DistanceY", 2, 2, -1, 1, Q("168 in")),
    Sketcher.Constraint("DistanceX", 3, 2, -1, 1, Q("7 in")),
    Sketcher.Constraint("DistanceY", 0, 2, 0, 1, Q("1334.855827 mm")),
])
sketch7.setExpression("Constraints[21]", "Params.sketch7_height")
sketch7.setExpression("Constraints[22]", "Params.sketch7_height2")
sketch7.setExpression("Constraints[23]", "Params.sketch7_height3")
sketch7.setExpression("Constraints[24]", "Params.sketch7_height4")
pad6 = doc.addObject("PartDesign::Pad", "Pad005")
body3.addObject(pad6)
pad6.Profile = sketch7
pad6.setExpression("Length", "Params.pad6_length")
body4 = doc.addObject("PartDesign::Body", "Body003")

# Sketch on YZ plane
sketch8 = doc.addObject("Sketcher::SketchObject", "Sketch007")
body4.addObject(sketch8)
sketch8.AttachmentSupport = (doc.getObject("YZ_Plane003"), [""])
sketch8.MapMode = "FlatFace"
sketch8.AttachmentOffset = App.Placement(Vector(0, 0, 74.75 * 25.4), App.Rotation())
sketch8.addGeometry([
    Part.LineSegment(Vector(209, 1398, 0), Vector(-1949, 5715, 0)),
    Part.LineSegment(Vector(-1949, 5715, 0), Vector(-1945, 5717, 0)),
    Part.LineSegment(Vector(-1945, 5717, 0), Vector(213, 1401, 0)),
    Part.LineSegment(Vector(213, 1401, 0), Vector(209, 1398, 0)),
], False)
sketch8.addConstraint([
    Sketcher.Constraint("Coincident", 0, 2, 1, 1),
    Sketcher.Constraint("Coincident", 1, 2, 2, 1),
    Sketcher.Constraint("Coincident", 2, 2, 3, 1),
    Sketcher.Constraint("Coincident", 3, 2, 0, 1),
    Sketcher.Constraint("Perpendicular", 0, 1),
    Sketcher.Constraint("Parallel", 0, 2),
    Sketcher.Constraint("Perpendicular", 2, 3),
    Sketcher.Constraint("Distance", 0, Q("190 in")),
    Sketcher.Constraint("DistanceY", -1, 1, 0, 2, Q("225 in")),
    Sketcher.Constraint("Distance", 1, Q("0.2 in")),
    Sketcher.Constraint("DistanceX", 0, 2, -1, 1, Q("76.75 in")),
    Sketcher.Constraint("DistanceY", -1, 1, 2, 2, Q("1400.766221 mm")),
])
sketch8.setExpression("Constraints[7]", "Params.sketch8_length")
sketch8.setExpression("Constraints[9]", "Params.sketch8_length2")
pad7 = doc.addObject("PartDesign::Pad", "Pad006")
body4.addObject(pad7)
pad7.Profile = sketch8
pad7.setExpression("Length", "Params.pad7_length")
pad7.Reversed = True
body5 = doc.addObject("PartDesign::Body", "Body004")

# Sketch on YZ plane
sketch9 = doc.addObject("Sketcher::SketchObject", "Sketch008")
body5.addObject(sketch9)
sketch9.AttachmentSupport = (doc.getObject("YZ_Plane004"), [""])
sketch9.MapMode = "FlatFace"
sketch9.AttachmentOffset = App.Placement(Vector(0, 0, 74.75 * 25.4), App.Rotation())
sketch9.addGeometry([
    Part.LineSegment(Vector(2416, -3937, 0), Vector(315, 266, 0)),
    Part.LineSegment(Vector(315, 266, 0), Vector(319, 268, 0)),
    Part.LineSegment(Vector(319, 268, 0), Vector(2421, -3935, 0)),
    Part.LineSegment(Vector(2421, -3935, 0), Vector(2416, -3937, 0)),
], False)
sketch9.addConstraint([
    Sketcher.Constraint("Coincident", 0, 2, 1, 1),
    Sketcher.Constraint("Coincident", 1, 2, 2, 1),
    Sketcher.Constraint("Coincident", 2, 2, 3, 1),
    Sketcher.Constraint("Coincident", 3, 2, 0, 1),
    Sketcher.Constraint("Perpendicular", 0, 1),
    Sketcher.Constraint("Parallel", 0, 2),
    Sketcher.Constraint("Perpendicular", 2, 3),
    Sketcher.Constraint("Distance", 0, Q("185 in")),
    Sketcher.Constraint("DistanceY", 3, 2, -1, 1, Q("155 in")),
    Sketcher.Constraint("Distance", 1, Q("0.2 in")),
    Sketcher.Constraint("DistanceY", -1, 1, 0, 2, Q("265.913371 mm")),
    Sketcher.Constraint("DistanceX", -1, 1, 2, 2, Q("2420.510478 mm")),
])
sketch9.setExpression("Constraints[7]", "Params.sketch9_length")
sketch9.setExpression("Constraints[9]", "Params.sketch9_length2")
pad8 = doc.addObject("PartDesign::Pad", "Pad007")
body5.addObject(pad8)
pad8.Profile = sketch9
pad8.setExpression("Length", "Params.pad8_length")
pad8.Reversed = True

doc.recompute()
